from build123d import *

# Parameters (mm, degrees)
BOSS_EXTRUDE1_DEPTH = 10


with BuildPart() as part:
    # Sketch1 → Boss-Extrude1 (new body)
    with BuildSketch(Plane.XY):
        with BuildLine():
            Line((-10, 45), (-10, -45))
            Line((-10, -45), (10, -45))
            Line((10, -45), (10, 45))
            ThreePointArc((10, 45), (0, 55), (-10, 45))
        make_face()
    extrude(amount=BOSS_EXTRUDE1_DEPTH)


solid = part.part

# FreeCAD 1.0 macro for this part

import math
import FreeCAD as App
import Part
import Sketcher

V = App.Vector
Q = App.Units.Quantity

doc = App.newDocument("Part")
body = doc.addObject("PartDesign::Body", "Body")

# Sketch on XY plane
sketch1 = body.newObject("Sketcher::SketchObject", "Sketch")
sketch1.AttachmentSupport = (doc.getObject("XY_Plane"), [""])
sketch1.MapMode = "FlatFace"
sketch1.addGeometry(Part.LineSegment(V(-10, 45, 0), V(-10, -45, 0)), False)
sketch1.addGeometry(Part.LineSegment(V(-10, -45, 0), V(10, -45, 0)), False)
sketch1.addGeometry(Part.LineSegment(V(10, -45, 0), V(10, 45, 0)), False)
sketch1.addGeometry(Part.ArcOfCircle(Part.Circle(V(0, 45, 0), V(0, 0, 1), 10), math.radians(0), math.radians(180)), False)
sketch1.addConstraint(Sketcher.Constraint("Coincident", 0, 2, 1, 1))
sketch1.addConstraint(Sketcher.Constraint("Coincident", 1, 2, 2, 1))
sketch1.addConstraint(Sketcher.Constraint("Tangent", 2, 2, 3, 1))
sketch1.addConstraint(Sketcher.Constraint("Tangent", 3, 2, 0, 1))
sketch1.addConstraint(Sketcher.Constraint("Vertical", 0))
sketch1.addConstraint(Sketcher.Constraint("Horizontal", 1))
sketch1.addConstraint(Sketcher.Constraint("Vertical", 2))
sketch1.addConstraint(Sketcher.Constraint("Symmetric", 0, 2, 2, 2, -1, 1))
sketch1.addConstraint(Sketcher.Constraint("Radius", 3, Q("10 mm")))
sketch1.addConstraint(Sketcher.Constraint("DistanceY", 0, 2, 0, 1, Q("90 mm")))
pad1 = body.newObject("PartDesign::Pad", "Pad")
pad1.Profile = sketch1
pad1.Length = 10

doc.recompute()
